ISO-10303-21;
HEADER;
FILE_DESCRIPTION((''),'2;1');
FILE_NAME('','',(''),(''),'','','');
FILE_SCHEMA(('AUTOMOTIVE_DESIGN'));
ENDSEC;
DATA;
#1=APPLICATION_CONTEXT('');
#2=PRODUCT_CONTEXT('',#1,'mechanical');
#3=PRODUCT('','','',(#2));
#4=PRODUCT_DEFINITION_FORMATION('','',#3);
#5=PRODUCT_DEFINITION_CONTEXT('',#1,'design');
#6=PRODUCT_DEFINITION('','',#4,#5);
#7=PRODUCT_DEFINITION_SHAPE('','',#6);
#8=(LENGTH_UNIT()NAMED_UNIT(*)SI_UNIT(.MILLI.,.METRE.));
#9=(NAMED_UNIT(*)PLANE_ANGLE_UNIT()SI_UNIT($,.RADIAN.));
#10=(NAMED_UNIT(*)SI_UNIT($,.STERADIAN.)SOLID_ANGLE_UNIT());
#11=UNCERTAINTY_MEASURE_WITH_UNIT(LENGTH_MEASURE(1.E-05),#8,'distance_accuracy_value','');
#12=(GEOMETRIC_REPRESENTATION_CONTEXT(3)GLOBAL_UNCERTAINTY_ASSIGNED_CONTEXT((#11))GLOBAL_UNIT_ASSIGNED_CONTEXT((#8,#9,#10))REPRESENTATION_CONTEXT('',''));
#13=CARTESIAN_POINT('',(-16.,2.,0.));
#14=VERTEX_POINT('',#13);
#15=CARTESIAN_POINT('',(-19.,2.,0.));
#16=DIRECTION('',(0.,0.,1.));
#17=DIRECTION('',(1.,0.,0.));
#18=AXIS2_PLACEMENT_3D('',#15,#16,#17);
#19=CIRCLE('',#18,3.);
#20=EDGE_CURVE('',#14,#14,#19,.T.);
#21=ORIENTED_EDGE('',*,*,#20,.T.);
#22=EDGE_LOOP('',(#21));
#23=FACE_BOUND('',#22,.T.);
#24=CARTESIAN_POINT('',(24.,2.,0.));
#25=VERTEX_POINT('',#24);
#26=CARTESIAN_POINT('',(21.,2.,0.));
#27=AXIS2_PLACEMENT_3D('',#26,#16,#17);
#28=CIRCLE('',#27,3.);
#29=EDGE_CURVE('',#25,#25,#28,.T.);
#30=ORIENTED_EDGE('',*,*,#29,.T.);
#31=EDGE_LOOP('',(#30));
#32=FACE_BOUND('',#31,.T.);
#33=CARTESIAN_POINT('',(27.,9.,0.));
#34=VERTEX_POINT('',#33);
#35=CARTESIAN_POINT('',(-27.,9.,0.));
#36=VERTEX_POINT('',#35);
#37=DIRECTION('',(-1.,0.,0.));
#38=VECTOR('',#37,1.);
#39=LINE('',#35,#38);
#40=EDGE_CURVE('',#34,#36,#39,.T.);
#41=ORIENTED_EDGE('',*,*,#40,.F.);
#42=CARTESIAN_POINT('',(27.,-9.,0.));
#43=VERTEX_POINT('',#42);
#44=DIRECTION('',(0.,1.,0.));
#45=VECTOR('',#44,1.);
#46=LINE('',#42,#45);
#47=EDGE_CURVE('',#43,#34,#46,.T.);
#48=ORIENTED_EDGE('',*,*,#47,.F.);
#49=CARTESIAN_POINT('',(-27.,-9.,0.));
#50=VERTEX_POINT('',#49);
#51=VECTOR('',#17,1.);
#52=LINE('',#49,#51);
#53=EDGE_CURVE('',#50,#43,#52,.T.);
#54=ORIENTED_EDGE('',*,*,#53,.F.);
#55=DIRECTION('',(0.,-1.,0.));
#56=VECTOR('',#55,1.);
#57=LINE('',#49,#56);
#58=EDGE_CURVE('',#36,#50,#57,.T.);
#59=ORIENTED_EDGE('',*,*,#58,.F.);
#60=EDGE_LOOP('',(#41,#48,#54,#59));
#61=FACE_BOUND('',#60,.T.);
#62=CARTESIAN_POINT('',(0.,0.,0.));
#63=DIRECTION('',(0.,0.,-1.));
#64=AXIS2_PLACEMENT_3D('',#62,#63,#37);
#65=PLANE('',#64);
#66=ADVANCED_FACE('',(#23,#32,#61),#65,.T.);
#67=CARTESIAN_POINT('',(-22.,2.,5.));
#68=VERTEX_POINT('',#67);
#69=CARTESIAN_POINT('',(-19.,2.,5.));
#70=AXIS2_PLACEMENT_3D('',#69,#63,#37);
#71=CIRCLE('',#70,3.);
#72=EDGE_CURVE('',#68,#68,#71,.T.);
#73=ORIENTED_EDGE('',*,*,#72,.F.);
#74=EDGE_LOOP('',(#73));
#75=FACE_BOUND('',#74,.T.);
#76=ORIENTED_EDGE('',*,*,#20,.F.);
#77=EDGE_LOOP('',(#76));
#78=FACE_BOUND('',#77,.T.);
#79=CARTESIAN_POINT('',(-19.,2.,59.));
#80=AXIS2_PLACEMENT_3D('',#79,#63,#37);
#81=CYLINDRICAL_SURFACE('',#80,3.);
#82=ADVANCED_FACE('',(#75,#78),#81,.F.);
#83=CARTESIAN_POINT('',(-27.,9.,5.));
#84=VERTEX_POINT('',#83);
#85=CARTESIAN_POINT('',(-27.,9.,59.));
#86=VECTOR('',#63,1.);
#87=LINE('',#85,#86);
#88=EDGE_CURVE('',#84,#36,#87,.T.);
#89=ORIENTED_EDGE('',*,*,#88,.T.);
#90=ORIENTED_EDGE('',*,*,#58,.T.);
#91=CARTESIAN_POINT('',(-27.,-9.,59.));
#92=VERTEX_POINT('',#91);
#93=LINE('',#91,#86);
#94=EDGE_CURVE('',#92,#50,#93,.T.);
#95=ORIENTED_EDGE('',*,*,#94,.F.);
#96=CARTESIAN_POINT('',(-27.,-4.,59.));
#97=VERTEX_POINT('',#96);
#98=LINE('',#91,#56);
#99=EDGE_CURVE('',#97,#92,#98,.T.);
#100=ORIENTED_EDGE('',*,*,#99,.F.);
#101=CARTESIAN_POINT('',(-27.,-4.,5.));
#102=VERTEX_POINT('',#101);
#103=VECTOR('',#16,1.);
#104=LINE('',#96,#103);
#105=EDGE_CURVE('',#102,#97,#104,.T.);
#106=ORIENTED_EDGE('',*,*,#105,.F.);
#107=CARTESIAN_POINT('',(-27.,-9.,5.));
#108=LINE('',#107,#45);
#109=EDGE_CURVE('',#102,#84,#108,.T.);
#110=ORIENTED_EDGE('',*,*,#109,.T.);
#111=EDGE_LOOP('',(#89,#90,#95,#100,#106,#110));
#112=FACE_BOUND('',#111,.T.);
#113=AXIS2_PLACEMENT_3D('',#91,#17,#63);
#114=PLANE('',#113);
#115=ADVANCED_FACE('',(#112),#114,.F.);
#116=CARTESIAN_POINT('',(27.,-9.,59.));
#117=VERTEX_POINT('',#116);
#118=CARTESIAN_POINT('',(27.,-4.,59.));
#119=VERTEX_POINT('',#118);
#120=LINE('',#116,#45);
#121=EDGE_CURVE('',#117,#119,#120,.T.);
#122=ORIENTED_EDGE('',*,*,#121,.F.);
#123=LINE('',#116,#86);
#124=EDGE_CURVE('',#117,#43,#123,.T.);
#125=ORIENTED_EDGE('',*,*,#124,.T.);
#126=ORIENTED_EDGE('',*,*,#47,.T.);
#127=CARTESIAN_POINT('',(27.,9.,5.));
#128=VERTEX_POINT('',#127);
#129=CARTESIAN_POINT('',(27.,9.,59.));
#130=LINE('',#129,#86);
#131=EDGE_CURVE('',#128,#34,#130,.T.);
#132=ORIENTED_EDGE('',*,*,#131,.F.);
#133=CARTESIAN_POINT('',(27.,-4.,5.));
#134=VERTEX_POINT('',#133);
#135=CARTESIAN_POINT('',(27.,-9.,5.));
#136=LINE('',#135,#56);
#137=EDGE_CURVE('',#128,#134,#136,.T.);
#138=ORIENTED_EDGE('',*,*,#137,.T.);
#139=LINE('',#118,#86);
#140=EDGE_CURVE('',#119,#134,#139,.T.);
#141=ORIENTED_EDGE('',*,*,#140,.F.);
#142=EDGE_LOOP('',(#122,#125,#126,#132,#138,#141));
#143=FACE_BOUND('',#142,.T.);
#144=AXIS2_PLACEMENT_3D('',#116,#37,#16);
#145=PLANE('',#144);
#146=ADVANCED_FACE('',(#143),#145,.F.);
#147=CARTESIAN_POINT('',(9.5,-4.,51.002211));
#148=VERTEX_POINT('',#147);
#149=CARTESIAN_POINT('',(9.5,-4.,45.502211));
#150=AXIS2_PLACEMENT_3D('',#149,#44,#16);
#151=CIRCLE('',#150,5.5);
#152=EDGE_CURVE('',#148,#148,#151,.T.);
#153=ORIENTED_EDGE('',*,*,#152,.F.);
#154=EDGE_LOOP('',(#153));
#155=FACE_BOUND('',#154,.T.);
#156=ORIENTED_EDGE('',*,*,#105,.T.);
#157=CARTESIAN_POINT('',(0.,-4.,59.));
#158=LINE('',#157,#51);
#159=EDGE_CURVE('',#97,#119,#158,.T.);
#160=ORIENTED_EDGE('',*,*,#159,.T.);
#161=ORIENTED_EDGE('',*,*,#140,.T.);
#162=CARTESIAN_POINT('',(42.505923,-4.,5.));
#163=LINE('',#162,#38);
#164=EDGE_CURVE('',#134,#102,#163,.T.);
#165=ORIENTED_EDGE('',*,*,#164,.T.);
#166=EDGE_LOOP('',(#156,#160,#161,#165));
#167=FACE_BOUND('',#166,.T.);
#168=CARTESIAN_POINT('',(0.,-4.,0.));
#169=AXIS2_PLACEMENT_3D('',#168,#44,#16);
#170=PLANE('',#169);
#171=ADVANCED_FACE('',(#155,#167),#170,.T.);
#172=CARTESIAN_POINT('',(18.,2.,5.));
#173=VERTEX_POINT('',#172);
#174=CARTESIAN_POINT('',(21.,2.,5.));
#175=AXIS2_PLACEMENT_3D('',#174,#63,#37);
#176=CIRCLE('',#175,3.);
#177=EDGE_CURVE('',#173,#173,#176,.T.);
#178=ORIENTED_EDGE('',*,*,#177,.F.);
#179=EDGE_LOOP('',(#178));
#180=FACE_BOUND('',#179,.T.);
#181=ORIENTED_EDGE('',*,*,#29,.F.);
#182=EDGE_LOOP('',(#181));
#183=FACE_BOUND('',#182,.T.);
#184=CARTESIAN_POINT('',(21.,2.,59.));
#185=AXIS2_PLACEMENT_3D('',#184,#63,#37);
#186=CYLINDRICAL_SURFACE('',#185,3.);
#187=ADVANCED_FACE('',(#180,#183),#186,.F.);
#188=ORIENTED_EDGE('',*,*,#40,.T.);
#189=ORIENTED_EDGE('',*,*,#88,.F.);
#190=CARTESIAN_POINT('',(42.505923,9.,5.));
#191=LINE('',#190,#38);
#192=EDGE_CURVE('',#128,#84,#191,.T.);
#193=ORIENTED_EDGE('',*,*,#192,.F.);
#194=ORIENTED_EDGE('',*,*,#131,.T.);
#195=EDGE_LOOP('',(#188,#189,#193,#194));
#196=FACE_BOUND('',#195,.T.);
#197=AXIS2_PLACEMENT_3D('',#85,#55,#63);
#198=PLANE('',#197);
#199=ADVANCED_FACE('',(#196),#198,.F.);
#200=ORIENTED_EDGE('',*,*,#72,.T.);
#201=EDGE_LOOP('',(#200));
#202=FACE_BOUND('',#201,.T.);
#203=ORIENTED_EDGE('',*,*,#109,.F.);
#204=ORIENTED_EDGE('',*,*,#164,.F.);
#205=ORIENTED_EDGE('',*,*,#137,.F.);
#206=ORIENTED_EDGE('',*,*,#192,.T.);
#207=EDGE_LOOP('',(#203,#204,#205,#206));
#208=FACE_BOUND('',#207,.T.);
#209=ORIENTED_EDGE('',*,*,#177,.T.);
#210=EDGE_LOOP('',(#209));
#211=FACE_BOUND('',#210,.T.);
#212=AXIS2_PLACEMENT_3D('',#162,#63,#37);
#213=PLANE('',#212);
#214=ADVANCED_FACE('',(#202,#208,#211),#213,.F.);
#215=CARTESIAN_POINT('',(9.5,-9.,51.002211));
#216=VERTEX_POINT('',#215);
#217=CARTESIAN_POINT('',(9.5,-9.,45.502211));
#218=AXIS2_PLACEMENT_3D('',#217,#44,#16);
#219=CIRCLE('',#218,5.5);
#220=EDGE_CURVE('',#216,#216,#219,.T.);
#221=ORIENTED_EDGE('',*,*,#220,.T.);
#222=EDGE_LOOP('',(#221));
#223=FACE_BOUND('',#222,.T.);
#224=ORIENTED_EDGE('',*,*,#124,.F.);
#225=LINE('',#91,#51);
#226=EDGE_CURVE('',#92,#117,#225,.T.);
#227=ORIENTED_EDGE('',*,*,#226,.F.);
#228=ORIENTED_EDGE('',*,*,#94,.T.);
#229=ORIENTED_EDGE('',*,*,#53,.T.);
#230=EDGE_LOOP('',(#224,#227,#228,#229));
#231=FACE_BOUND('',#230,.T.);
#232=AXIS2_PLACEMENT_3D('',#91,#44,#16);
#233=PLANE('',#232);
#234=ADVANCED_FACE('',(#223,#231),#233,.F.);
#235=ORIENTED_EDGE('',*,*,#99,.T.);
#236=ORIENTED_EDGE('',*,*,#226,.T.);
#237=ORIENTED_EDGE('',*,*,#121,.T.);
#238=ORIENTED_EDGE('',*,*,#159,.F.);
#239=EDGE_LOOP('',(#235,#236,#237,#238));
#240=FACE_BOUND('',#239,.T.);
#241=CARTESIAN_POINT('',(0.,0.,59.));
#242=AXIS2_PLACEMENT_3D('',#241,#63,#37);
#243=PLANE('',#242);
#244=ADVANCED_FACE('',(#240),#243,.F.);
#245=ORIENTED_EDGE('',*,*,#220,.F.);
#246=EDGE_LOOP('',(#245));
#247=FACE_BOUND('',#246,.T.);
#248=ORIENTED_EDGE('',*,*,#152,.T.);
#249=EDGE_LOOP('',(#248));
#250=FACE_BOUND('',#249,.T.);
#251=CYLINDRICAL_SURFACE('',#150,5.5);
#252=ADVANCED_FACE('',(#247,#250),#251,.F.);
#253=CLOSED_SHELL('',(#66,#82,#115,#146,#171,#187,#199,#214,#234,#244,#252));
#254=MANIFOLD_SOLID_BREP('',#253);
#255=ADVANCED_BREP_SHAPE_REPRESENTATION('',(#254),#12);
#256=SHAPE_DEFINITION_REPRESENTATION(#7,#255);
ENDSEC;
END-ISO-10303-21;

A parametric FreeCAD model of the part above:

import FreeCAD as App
import Part
import Sketcher
from FreeCAD import Vector
Q = App.Units.Quantity


def add_polygon(sketch, points):
    """Adds a closed chain of lines whose ends are joined by coincident constraints."""
    first, n = sketch.GeometryCount, len(points)
    for a, b in zip(points, points[1:] + points[:1]):
        sketch.addGeometry(Part.LineSegment(App.Vector(*a, 0), App.Vector(*b, 0)), False)
    for i in range(n):
        sketch.addConstraint(Sketcher.Constraint("Coincident", first + i, 2, first + (i + 1) % n, 1))

doc = App.newDocument("Part")
params = doc.addObject("Spreadsheet::Sheet", "Params")
for row, (alias, value) in enumerate([
    ("sketch1_diameter", "6 mm"),
    ("sketch1_width", "54 mm"),
    ("sketch1_height", "18 mm"),
    ("pad1_length", "59 mm"),
    ("pocket1_length", "13 mm"),
    ("sketch3_diameter", "11 mm"),
    ("hole_diameter", "11 mm"),
], start=1):
    params.set(f"A{row}", alias)
    params.set(f"B{row}", "=" + value)
    params.setAlias(f"B{row}", alias)

body = doc.addObject("PartDesign::Body", "Body")

# Sketch on XY plane
sketch1 = body.newObject("Sketcher::SketchObject", "Sketch")
sketch1.AttachmentSupport = (doc.getObject("XY_Plane"), [""])
sketch1.MapMode = "FlatFace"
add_polygon(sketch1, [(-27, 9), (-27, -9), (27, -9), (27, 9)])  # lines 0-3
sketch1.addGeometry(Part.Circle(Vector(-19, 2, 0), Vector(0, 0, 1), 3), False)  # 4
sketch1.addGeometry(Part.Circle(Vector(21, 2, 0), Vector(0, 0, 1), 3), False)  # 5
sketch1.addConstraint([
    Sketcher.Constraint("Vertical", 0),
    Sketcher.Constraint("Horizontal", 1),
    Sketcher.Constraint("Vertical", 2),
    Sketcher.Constraint("Horizontal", 3),
    Sketcher.Constraint("Equal", 4, 5),
    Sketcher.Constraint("Symmetric", 0, 2, 2, 2, -1, 1),
    Sketcher.Constraint("Horizontal", 4, 3, 5, 3),
    Sketcher.Constraint("Diameter", 4, Q("6 mm")),
    Sketcher.Constraint("DistanceX", 1, 1, 1, 2, Q("54 mm")),
    Sketcher.Constraint("DistanceY", 0, 2, 0, 1, Q("18 mm")),
    Sketcher.Constraint("DistanceX", 4, 3, -1, 1, Q("19 mm")),
    Sketcher.Constraint("DistanceY", -1, 1, 4, 3, Q("2 mm")),
    Sketcher.Constraint("DistanceX", -1, 1, 5, 3, Q("21 mm")),
])
sketch1.setExpression("Constraints[11]", "Params.sketch1_diameter")
sketch1.setExpression("Constraints[12]", "Params.sketch1_width")
sketch1.setExpression("Constraints[13]", "Params.sketch1_height")
pad1 = body.newObject("PartDesign::Pad", "Pad")
pad1.Profile = sketch1
pad1.setExpression("Length", "Params.pad1_length")

# Sketch on XZ plane
sketch2 = body.newObject("Sketcher::SketchObject", "Sketch001")
sketch2.AttachmentSupport = (doc.getObject("XZ_Plane"), [""])
sketch2.MapMode = "FlatFace"
sketch2.AttachmentOffset = App.Placement(Vector(0, 0, -9), App.Rotation())
add_polygon(sketch2, [(-47.379953, 5), (-47.379953, 79.564815), (42.505923, 79.564815), (42.505923, 5)])  # lines 0-3
sketch2.addConstraint([
    Sketcher.Constraint("Vertical", 0),
    Sketcher.Constraint("Horizontal", 1),
    Sketcher.Constraint("Vertical", 2),
    Sketcher.Constraint("Horizontal", 3),
    Sketcher.Constraint("DistanceY", -1, 1, 2, 2, Q("5 mm")),
    Sketcher.Constraint("DistanceX", 1, 1, 1, 2, Q("89.885876 mm")),
    Sketcher.Constraint("DistanceY", 0, 1, 0, 2, Q("74.564815 mm")),
    Sketcher.Constraint("DistanceX", 0, 2, -1, 1, Q("47.379953 mm")),
])
pocket1 = body.newObject("PartDesign::Pocket", "Pocket")
pocket1.Profile = sketch2
pocket1.setExpression("Length", "Params.pocket1_length")
pocket1.Reversed = True

# Sketch on XZ plane
sketch3 = body.newObject("Sketcher::SketchObject", "Sketch002")
sketch3.AttachmentSupport = (doc.getObject("XZ_Plane"), [""])
sketch3.MapMode = "FlatFace"
sketch3.AttachmentOffset = App.Placement(Vector(0, 0, 4), App.Rotation())
sketch3.addGeometry(Part.Circle(Vector(9.5, 45.50221, 0), Vector(0, 0, 1), 5.5), False)
sketch3.addConstraint([
    Sketcher.Constraint("Diameter", 0, Q("11 mm")),
    Sketcher.Constraint("DistanceX", -1, 1, 0, 3, Q("9.5 mm")),
    Sketcher.Constraint("DistanceY", -1, 1, 0, 3, Q("45.50221 mm")),
])
sketch3.setExpression("Constraints[0]", "Params.sketch3_diameter")
doc.recompute()
hole = body.newObject("PartDesign::Hole", "Hole")
hole.Profile = sketch3
hole.ThreadType = "None"
hole.setExpression("Diameter", "Params.hole_diameter")
hole.DepthType = "ThroughAll"
hole.Reversed = True

doc.recompute()
